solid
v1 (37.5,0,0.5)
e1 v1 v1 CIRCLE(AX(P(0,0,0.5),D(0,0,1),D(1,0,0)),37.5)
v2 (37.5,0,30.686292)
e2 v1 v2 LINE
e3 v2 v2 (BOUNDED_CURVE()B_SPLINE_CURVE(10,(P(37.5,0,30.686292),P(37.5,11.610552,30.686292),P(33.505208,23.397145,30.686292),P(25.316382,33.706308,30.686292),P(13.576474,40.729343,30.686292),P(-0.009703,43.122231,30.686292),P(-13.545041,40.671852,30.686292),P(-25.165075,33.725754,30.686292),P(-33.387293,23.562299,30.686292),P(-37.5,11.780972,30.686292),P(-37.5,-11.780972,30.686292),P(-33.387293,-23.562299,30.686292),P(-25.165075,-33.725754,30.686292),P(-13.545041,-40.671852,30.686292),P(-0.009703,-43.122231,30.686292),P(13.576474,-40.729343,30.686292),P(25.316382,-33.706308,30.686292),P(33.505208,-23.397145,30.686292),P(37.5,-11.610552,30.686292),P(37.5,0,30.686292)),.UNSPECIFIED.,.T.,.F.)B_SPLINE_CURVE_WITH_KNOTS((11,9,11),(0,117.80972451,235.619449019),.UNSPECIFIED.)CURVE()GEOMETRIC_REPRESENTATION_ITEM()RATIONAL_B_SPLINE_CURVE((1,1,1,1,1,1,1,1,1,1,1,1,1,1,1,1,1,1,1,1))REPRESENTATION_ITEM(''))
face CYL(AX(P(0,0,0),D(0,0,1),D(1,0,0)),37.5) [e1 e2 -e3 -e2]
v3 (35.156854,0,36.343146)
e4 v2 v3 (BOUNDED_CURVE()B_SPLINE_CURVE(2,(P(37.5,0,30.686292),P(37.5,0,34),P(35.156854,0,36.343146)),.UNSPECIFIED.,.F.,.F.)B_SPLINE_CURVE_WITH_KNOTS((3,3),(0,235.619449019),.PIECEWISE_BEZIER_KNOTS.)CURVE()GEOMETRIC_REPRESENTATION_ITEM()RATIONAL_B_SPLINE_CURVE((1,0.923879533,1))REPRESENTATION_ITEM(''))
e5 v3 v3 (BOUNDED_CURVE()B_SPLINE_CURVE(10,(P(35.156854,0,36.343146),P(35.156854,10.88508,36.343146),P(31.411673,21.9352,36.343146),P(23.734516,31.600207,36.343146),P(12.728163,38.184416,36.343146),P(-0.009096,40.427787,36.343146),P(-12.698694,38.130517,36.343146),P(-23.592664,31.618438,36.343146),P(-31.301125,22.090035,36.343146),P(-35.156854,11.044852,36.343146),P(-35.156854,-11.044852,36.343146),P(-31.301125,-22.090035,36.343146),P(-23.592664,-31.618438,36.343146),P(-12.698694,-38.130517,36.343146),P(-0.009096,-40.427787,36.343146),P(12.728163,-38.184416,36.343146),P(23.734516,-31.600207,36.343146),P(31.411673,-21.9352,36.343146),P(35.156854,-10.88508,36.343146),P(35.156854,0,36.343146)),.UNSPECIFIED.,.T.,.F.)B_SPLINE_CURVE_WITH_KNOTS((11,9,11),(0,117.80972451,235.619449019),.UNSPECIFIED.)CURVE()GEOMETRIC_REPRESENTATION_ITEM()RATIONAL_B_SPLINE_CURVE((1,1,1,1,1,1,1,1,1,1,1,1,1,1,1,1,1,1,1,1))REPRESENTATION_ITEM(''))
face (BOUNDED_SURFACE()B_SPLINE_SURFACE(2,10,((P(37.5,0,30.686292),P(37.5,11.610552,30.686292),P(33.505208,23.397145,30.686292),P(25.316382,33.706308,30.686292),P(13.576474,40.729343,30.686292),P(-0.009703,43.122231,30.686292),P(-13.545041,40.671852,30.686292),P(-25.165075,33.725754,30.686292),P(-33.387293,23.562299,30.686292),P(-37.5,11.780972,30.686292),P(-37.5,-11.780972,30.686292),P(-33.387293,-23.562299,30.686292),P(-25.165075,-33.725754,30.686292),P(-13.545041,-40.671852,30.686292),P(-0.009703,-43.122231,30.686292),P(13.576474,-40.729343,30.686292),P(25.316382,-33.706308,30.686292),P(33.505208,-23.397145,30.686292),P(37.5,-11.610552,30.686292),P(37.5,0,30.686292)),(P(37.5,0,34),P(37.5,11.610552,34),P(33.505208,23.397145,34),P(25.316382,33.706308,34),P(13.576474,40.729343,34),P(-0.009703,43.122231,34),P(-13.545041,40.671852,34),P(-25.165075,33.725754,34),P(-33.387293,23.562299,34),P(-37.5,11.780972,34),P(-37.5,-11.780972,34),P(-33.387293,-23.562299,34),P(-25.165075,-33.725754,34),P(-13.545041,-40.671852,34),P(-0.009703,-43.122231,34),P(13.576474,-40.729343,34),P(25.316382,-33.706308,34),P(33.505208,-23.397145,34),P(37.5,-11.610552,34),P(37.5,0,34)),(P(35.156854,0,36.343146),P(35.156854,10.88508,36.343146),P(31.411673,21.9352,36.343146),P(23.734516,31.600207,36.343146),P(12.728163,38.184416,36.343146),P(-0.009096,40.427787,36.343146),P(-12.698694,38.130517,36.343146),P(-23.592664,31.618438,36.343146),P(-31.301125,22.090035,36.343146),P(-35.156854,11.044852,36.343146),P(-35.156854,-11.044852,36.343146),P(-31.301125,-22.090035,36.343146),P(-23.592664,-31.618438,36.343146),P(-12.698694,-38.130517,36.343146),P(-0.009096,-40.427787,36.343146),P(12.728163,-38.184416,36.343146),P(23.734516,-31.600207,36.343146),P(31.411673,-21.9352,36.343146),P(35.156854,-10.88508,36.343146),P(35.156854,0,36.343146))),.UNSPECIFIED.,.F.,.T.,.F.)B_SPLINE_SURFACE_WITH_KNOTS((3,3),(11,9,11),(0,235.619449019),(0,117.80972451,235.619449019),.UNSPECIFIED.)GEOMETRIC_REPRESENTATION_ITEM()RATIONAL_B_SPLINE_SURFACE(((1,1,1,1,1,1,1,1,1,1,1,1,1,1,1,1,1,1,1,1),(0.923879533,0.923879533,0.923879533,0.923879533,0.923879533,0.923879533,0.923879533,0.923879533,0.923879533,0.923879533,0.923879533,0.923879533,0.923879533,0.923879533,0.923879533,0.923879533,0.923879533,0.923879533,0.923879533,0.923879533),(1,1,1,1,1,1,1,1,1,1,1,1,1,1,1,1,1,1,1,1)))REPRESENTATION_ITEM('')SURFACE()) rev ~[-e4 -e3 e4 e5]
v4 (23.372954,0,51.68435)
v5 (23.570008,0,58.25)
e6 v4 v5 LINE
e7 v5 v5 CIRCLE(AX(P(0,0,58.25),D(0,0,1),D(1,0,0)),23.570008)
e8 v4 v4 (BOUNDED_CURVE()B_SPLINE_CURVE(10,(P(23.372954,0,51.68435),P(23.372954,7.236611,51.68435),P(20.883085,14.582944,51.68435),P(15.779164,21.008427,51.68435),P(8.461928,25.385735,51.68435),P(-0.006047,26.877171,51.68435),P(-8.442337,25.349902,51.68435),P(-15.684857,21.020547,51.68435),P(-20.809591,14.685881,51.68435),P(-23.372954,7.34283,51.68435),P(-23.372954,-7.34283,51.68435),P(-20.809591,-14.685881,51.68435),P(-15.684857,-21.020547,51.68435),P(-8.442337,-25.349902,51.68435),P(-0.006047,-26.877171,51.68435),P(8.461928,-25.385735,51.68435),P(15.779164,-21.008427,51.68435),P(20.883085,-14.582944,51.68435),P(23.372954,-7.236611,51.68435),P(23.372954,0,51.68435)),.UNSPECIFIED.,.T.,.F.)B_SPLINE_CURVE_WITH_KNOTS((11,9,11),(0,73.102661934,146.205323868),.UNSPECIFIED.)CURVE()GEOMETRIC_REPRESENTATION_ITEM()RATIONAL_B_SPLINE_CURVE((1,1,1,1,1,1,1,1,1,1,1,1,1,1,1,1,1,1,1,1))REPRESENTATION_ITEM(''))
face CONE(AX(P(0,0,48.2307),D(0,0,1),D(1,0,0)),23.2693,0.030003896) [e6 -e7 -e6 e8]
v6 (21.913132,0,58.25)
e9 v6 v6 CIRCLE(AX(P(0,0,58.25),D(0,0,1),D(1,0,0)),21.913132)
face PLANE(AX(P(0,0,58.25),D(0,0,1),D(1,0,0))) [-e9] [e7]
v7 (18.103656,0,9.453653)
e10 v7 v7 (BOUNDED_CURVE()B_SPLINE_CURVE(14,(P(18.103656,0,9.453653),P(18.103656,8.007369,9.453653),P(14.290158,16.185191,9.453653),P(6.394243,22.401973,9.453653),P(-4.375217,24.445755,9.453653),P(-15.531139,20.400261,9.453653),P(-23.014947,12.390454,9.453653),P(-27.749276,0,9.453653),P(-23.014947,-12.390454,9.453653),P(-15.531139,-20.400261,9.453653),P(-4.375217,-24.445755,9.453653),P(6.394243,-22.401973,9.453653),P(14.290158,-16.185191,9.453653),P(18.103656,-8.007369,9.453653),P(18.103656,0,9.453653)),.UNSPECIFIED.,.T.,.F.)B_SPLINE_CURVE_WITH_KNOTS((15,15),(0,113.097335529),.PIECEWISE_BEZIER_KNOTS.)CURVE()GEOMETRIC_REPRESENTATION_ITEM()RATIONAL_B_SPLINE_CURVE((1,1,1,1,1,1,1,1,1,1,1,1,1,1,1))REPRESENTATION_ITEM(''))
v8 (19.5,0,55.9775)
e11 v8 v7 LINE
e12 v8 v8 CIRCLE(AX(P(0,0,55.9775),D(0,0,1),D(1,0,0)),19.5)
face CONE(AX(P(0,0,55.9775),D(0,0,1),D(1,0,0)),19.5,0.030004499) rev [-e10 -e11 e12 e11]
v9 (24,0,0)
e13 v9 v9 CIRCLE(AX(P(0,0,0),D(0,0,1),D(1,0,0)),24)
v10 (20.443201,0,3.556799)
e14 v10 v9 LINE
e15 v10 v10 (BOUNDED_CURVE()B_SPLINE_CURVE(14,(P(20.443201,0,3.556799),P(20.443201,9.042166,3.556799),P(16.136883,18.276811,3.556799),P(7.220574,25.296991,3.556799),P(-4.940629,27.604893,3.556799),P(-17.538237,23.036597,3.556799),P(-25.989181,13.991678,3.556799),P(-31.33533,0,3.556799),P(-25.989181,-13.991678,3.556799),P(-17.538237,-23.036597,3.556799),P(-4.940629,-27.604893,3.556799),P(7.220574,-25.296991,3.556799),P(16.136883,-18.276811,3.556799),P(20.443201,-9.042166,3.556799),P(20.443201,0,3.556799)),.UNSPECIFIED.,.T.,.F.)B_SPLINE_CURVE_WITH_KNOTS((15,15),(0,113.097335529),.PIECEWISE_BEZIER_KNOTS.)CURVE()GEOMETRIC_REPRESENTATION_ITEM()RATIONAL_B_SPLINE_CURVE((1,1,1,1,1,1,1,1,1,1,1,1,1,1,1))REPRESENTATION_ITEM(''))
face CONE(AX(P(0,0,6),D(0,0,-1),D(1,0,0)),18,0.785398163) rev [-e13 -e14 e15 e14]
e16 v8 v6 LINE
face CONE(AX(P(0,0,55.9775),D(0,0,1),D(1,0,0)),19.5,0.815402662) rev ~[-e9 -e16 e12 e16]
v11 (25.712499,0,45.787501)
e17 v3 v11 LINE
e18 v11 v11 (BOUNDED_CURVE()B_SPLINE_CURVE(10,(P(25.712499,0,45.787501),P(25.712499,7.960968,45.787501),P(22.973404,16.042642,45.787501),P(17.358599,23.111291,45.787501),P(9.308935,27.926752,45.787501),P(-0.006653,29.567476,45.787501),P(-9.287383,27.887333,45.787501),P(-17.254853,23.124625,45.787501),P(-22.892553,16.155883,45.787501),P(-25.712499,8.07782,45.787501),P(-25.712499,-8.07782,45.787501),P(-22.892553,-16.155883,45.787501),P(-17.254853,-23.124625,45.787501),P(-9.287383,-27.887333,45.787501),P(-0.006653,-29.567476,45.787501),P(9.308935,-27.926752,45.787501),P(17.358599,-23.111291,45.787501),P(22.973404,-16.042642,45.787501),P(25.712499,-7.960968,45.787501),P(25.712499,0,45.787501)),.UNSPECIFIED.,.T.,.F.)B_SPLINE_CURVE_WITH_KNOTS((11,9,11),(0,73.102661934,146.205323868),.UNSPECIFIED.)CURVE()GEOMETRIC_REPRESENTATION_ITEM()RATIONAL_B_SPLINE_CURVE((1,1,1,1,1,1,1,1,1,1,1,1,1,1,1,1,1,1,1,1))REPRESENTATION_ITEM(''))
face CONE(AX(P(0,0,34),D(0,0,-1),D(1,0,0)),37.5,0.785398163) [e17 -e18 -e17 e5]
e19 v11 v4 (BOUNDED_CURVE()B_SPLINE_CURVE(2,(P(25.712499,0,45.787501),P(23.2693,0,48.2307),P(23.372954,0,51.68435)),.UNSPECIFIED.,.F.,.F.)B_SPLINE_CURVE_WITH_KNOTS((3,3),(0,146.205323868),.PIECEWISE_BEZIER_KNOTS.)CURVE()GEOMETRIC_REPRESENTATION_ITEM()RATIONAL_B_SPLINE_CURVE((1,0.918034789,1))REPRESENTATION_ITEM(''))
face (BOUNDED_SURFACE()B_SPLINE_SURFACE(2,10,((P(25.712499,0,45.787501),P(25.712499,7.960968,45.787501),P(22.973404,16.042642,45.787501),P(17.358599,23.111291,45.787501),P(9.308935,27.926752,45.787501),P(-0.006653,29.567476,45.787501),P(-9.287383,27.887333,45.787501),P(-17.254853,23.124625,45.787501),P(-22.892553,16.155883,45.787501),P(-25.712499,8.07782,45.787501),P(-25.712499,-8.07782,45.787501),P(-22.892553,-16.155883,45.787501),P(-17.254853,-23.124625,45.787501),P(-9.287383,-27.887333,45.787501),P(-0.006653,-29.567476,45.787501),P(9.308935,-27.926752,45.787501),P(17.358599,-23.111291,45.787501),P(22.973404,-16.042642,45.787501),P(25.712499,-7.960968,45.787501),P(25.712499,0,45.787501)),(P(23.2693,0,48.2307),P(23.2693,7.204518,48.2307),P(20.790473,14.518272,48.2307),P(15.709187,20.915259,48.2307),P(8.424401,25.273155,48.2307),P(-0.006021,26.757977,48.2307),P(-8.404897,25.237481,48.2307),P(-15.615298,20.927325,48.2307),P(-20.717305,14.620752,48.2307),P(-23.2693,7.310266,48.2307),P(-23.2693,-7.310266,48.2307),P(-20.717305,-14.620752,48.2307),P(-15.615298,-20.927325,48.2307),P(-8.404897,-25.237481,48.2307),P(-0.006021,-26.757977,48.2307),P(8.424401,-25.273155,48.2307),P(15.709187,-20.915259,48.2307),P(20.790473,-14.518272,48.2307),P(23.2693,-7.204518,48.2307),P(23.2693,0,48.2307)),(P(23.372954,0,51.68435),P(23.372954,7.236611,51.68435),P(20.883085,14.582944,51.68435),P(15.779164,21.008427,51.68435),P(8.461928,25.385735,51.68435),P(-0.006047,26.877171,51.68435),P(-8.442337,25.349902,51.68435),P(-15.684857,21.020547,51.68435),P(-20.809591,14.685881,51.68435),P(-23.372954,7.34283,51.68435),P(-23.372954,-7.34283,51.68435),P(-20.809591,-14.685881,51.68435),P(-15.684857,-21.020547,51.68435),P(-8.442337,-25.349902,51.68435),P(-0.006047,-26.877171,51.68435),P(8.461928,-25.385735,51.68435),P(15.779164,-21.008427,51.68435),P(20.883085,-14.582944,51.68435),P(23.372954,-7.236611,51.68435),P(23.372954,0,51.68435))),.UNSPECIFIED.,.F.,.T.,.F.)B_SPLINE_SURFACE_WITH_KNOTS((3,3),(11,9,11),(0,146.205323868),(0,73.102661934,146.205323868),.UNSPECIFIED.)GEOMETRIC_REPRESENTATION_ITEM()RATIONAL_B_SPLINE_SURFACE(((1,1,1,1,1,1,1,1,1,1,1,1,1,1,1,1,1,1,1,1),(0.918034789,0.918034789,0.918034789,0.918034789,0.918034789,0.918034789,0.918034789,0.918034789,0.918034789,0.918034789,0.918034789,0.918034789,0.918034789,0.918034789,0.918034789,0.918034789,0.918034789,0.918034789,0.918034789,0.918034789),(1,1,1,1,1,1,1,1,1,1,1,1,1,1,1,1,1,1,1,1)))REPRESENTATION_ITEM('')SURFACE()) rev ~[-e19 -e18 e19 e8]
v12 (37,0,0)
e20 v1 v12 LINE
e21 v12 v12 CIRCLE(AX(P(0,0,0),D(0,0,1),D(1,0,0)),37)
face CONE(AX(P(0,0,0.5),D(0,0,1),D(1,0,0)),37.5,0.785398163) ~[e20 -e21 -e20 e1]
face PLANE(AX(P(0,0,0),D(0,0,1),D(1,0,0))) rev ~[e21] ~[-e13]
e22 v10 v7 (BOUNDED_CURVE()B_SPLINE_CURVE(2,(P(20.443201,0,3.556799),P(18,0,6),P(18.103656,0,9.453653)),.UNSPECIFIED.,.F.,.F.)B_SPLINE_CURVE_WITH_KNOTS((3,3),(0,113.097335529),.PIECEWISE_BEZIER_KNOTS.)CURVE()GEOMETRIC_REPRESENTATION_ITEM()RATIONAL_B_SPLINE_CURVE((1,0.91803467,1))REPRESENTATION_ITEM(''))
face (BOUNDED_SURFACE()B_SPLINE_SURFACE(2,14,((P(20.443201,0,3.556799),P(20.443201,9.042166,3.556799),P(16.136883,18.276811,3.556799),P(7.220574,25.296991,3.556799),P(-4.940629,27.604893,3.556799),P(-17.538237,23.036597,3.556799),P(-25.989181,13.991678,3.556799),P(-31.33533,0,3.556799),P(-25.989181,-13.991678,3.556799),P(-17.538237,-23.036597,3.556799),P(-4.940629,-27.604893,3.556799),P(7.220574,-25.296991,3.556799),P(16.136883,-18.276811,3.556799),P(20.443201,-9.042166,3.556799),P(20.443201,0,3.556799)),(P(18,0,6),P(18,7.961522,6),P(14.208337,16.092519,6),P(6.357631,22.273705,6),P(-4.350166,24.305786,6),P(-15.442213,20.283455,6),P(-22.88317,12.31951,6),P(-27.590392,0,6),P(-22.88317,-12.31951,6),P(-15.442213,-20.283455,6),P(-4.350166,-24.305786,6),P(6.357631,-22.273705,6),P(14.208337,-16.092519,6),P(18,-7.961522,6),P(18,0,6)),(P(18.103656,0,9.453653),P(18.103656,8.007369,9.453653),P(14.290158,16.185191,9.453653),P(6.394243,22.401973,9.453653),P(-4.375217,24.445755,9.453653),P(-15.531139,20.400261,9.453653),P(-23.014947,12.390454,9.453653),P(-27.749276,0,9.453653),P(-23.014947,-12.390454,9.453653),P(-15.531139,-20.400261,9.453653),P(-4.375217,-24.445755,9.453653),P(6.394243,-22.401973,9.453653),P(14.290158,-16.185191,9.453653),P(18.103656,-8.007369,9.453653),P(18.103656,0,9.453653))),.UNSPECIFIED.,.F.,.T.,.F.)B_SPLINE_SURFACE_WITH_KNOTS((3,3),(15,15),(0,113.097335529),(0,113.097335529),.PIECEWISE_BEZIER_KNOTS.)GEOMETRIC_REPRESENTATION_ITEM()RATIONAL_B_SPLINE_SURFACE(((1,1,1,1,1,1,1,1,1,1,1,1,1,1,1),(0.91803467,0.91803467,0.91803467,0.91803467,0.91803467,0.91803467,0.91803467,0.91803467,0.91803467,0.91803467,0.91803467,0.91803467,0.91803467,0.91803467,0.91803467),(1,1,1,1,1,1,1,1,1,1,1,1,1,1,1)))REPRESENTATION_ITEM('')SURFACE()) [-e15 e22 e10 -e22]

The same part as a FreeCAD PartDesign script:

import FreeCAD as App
import Part
import Sketcher

V = App.Vector
Q = App.Units.Quantity


def edges_at(feature, points):
    """Names of the edges that pass closest to the given points."""
    edges = feature.Shape.Edges
    near = lambda p: min(range(len(edges)), key=lambda i: edges[i].distToShape(Part.Vertex(*p))[0])
    return sorted({f"Edge{near(p) + 1}" for p in points})

doc = App.newDocument("Part")
body = doc.addObject("PartDesign::Body", "Body")

# Sketch on XZ plane
sketch1 = doc.addObject("Sketcher::SketchObject", "Sketch")
body.addObject(sketch1)
sketch1.AttachmentSupport = (doc.XZ_Plane, [""])
sketch1.MapMode = "FlatFace"
sketch1.addGeometry([
    Part.LineSegment(V(37.5, 34, 0), V(37.5, 0, 0)),  # 0
    Part.LineSegment(V(37.5, 0, 0), V(24, 0, 0)),  # 1
    Part.LineSegment(V(24, 0, 0), V(18, 6, 0)),  # 2
    Part.LineSegment(V(18, 6, 0), V(19.5, 55.9775, 0)),  # 3
    Part.LineSegment(V(19.5, 55.9775, 0), V(23.6182, 59.8557, 0)),  # 4
    Part.LineSegment(V(23.6182, 59.8557, 0), V(23.2693, 48.2307, 0)),  # 5
    Part.LineSegment(V(23.2693, 48.2307, 0), V(37.5, 34, 0)),  # 6
], False)
sketch1.addConstraint([
    Sketcher.Constraint("Coincident", 0, 2, 1, 1),
    Sketcher.Constraint("Coincident", 1, 2, 2, 1),
    Sketcher.Constraint("Coincident", 2, 2, 3, 1),
    Sketcher.Constraint("Coincident", 3, 2, 4, 1),
    Sketcher.Constraint("Coincident", 4, 2, 5, 1),
    Sketcher.Constraint("Coincident", 5, 2, 6, 1),
    Sketcher.Constraint("Coincident", 6, 2, 0, 1),
    Sketcher.Constraint("Vertical", 0),
    Sketcher.Constraint("Horizontal", 1),
    Sketcher.Constraint("PointOnObject", 0, 2, -1),
    Sketcher.Constraint("DistanceY", 0, 2, 0, 1, Q("34 mm")),
    Sketcher.Constraint("Distance", 3, Q("50 mm")),
    Sketcher.Constraint("DistanceX", -1, 1, 1, 2, Q("24 mm")),
    Sketcher.Constraint("DistanceX", -1, 1, 2, 2, Q("18 mm")),
    Sketcher.Constraint("DistanceX", 3, 2, 0, 2, Q("18 mm")),
    Sketcher.Constraint("DistanceX", -1, 1, 0, 2, Q("37.5 mm")),
    Sketcher.Constraint("DistanceY", -1, 1, 2, 2, Q("6 mm")),
    Sketcher.Constraint("DistanceX", 5, 2, 4, 2, Q("0.349 mm")),
    Sketcher.Constraint("DistanceY", 5, 2, 4, 2, Q("11.625 mm")),
    Sketcher.Constraint("Distance", 4, Q("5.6569 mm")),
    Sketcher.Constraint("Distance", 6, Q("20.1252 mm")),
])
revolution = doc.addObject("PartDesign::Revolution", "Revolution")
body.addObject(revolution)
revolution.Profile = sketch1
revolution.ReferenceAxis = (sketch1, ["V_Axis"])
revolution.Angle = 360
doc.recompute()

fillet = doc.addObject("PartDesign::Fillet", "Fillet")
body.addObject(fillet)
fillet.Base = (revolution, edges_at(revolution, [(-23.269, 0, 48.231), (-37.5, 0, 34)]))
fillet.Radius = 8

# Sketch on XY plane
sketch2 = doc.addObject("Sketcher::SketchObject", "Sketch001")
body.addObject(sketch2)
sketch2.AttachmentSupport = (doc.XY_Plane, [""])
sketch2.MapMode = "FlatFace"
sketch2.AttachmentOffset = App.Placement(V(0, 0, 60.25), App.Rotation())
sketch2.addGeometry(Part.Circle(V(0, 0, 0), V(0, 0, 1), 31), False)
sketch2.addConstraint([
    Sketcher.Constraint("Coincident", 0, 3, -1, 1),
    Sketcher.Constraint("Diameter", 0, Q("62.3624 mm")),
])
pocket1 = doc.addObject("PartDesign::Pocket", "Pocket")
body.addObject(pocket1)
pocket1.Profile = sketch2
pocket1.Length = 2
doc.recompute()

chamfer = doc.addObject("PartDesign::Chamfer", "Chamfer")
body.addObject(chamfer)
chamfer.Base = (pocket1, edges_at(pocket1, [(-37.5, 0, 0)]))
chamfer.Size = 0.5
doc.recompute()

fillet2 = doc.addObject("PartDesign::Fillet", "Fillet001")
body.addObject(fillet2)
fillet2.Base = (chamfer, edges_at(chamfer, [(-18, 0, 6)]))
fillet2.Radius = 8

doc.recompute()
